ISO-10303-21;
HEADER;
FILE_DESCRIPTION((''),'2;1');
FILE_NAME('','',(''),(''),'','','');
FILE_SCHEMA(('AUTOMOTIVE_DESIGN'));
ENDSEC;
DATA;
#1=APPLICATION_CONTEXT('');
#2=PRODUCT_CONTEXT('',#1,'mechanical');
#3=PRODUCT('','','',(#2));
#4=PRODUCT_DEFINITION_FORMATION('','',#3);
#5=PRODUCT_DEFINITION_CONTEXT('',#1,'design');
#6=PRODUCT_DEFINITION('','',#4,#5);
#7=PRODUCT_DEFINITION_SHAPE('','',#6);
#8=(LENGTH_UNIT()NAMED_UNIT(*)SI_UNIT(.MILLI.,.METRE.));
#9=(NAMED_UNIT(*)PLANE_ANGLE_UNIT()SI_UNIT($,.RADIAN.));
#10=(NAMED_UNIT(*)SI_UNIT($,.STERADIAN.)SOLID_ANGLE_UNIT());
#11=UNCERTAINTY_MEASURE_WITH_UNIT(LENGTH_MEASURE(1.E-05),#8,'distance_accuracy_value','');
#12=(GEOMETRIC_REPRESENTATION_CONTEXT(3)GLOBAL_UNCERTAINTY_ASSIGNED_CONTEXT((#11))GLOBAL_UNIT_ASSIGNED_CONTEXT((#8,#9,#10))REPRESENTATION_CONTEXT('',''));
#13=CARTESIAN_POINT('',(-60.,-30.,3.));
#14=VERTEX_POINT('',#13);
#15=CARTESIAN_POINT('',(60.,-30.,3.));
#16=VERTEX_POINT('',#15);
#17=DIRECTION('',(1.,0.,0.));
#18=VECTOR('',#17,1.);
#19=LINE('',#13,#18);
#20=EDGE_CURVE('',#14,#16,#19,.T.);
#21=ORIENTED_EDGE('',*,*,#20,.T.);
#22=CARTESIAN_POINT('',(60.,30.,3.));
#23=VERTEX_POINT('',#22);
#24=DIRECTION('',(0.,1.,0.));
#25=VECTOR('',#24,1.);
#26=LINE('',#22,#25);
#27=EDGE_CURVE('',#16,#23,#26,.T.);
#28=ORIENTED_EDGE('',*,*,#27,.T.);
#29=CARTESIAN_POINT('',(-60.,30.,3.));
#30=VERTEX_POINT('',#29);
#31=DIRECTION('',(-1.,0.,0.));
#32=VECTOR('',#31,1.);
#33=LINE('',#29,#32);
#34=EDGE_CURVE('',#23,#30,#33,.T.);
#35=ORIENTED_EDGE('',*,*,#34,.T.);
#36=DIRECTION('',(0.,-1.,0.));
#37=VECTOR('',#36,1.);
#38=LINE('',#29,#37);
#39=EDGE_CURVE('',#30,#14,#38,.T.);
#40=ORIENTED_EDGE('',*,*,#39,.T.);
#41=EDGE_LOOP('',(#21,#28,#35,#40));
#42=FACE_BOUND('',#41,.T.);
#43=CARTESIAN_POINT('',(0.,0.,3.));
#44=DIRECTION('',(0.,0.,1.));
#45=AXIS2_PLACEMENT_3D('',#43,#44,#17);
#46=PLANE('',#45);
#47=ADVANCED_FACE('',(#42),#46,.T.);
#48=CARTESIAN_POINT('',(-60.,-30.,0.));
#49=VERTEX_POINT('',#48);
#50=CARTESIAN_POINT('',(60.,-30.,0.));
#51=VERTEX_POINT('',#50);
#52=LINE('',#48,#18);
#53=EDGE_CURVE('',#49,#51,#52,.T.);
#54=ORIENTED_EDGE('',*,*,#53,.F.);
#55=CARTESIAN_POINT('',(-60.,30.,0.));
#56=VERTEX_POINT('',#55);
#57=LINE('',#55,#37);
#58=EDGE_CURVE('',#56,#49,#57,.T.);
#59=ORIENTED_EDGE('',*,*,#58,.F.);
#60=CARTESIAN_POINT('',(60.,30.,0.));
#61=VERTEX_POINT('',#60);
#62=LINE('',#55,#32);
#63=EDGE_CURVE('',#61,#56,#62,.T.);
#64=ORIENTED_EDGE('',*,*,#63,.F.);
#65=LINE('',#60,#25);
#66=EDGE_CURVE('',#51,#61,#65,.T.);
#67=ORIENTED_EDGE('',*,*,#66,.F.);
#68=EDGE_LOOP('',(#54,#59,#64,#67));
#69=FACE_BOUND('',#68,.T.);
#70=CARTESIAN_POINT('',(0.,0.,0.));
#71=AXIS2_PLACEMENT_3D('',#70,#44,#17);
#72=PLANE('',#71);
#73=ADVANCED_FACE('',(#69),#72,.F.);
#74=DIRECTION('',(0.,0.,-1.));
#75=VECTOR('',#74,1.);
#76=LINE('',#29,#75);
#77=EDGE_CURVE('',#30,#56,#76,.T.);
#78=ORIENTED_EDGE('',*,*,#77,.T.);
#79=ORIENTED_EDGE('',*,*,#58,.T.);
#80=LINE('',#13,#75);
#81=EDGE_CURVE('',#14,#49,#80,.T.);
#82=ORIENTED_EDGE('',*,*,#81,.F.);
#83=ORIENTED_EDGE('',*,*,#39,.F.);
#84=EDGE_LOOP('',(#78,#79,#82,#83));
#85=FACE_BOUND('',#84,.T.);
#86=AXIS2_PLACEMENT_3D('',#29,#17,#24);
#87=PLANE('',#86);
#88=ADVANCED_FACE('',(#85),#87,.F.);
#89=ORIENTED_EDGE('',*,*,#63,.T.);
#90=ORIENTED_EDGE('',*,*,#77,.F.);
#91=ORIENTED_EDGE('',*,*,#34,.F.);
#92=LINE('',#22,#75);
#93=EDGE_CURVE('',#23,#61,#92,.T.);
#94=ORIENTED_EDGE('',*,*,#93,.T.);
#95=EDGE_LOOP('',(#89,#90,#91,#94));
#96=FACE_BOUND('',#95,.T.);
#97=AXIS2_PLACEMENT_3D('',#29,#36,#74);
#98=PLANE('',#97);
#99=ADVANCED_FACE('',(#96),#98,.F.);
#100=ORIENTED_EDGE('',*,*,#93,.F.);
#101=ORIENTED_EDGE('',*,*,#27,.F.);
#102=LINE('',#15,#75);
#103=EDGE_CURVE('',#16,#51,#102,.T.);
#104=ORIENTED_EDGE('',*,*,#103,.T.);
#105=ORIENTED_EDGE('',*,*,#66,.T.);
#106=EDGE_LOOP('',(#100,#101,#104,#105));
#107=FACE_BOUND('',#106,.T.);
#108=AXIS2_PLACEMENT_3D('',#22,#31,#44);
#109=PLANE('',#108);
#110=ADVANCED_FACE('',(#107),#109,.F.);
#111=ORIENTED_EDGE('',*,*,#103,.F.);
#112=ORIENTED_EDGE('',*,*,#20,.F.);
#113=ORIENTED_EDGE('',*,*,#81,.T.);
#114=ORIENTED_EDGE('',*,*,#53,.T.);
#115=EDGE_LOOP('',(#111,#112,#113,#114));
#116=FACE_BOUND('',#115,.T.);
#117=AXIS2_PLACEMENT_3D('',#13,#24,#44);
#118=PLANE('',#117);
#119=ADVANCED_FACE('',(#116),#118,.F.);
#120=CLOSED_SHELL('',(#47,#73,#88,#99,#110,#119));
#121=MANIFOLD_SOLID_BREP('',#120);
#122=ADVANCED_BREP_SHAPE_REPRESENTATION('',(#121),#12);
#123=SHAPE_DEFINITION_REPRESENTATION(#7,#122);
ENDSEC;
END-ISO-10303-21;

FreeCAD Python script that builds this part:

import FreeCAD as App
import Part
import Sketcher

V = App.Vector
Q = App.Units.Quantity


def add_polygon(sketch, points):
    """Adds a closed chain of lines whose ends are joined by coincident constraints."""
    first, n = sketch.GeometryCount, len(points)
    for a, b in zip(points, points[1:] + points[:1]):
        sketch.addGeometry(Part.LineSegment(App.Vector(*a, 0), App.Vector(*b, 0)), False)
    for i in range(n):
        sketch.addConstraint(Sketcher.Constraint("Coincident", first + i, 2, first + (i + 1) % n, 1))

doc = App.newDocument("Part")
body = doc.addObject("PartDesign::Body", "Body")

# Sketch on XY plane
sketch1 = body.newObject("Sketcher::SketchObject", "Sketch")
sketch1.AttachmentSupport = (doc.getObject("XY_Plane"), [""])
sketch1.MapMode = "FlatFace"
add_polygon(sketch1, [(-60, 30), (-60, -30), (60, -30), (60, 30)])  # lines 0-3
sketch1.addConstraint([
    Sketcher.Constraint("Vertical", 0),
    Sketcher.Constraint("Horizontal", 1),
    Sketcher.Constraint("Vertical", 2),
    Sketcher.Constraint("Horizontal", 3),
    Sketcher.Constraint("Symmetric", 0, 2, 2, 2, -1, 1),
    Sketcher.Constraint("DistanceX", 1, 1, 1, 2, Q("120 mm")),
    Sketcher.Constraint("DistanceY", 0, 2, 0, 1, Q("60 mm")),
])
pad1 = body.newObject("PartDesign::Pad", "Pad")
pad1.Profile = sketch1
pad1.Length = 3

doc.recompute()
